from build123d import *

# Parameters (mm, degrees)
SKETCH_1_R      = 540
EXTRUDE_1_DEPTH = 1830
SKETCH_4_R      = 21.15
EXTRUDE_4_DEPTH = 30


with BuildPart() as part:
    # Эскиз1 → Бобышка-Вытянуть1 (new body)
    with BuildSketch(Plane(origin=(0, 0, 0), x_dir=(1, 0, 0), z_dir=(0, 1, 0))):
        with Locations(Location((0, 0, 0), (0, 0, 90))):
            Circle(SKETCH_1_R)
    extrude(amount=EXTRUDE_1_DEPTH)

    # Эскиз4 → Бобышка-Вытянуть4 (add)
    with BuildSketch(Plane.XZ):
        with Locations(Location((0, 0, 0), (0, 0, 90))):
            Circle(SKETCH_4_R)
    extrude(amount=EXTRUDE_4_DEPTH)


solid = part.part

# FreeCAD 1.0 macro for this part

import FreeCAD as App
import Part
import Sketcher
Q = App.Units.Quantity

doc = App.newDocument("Part")
body = doc.addObject("PartDesign::Body", "Body")

# Sketch on XZ plane
sketch1 = body.newObject("Sketcher::SketchObject", "Sketch")
sketch1.AttachmentSupport = (doc.getObject("XZ_Plane"), [""])
sketch1.MapMode = "FlatFace"
sketch1.addGeometry(Part.Circle(App.Vector(0, 0, 0), App.Vector(0, 0, 1), 540), False)
sketch1.addConstraint([
    Sketcher.Constraint("Coincident", 0, 3, -1, 1),
    Sketcher.Constraint("Diameter", 0, Q("1080 mm")),
])
pad1 = body.newObject("PartDesign::Pad", "Pad")
pad1.Profile = sketch1
pad1.Length = 1830
pad1.Reversed = True

# Sketch on XZ plane
sketch2 = body.newObject("Sketcher::SketchObject", "Sketch001")
sketch2.AttachmentSupport = (doc.getObject("XZ_Plane"), [""])
sketch2.MapMode = "FlatFace"
sketch2.addGeometry(Part.Circle(App.Vector(0, 0, 0), App.Vector(0, 0, 1), 21.15), False)
sketch2.addConstraint([
    Sketcher.Constraint("Coincident", 0, 3, -1, 1),
    Sketcher.Constraint("Diameter", 0, Q("42.3 mm")),
])
pad2 = body.newObject("PartDesign::Pad", "Pad001")
pad2.Profile = sketch2
pad2.Length = 30

doc.recompute()
